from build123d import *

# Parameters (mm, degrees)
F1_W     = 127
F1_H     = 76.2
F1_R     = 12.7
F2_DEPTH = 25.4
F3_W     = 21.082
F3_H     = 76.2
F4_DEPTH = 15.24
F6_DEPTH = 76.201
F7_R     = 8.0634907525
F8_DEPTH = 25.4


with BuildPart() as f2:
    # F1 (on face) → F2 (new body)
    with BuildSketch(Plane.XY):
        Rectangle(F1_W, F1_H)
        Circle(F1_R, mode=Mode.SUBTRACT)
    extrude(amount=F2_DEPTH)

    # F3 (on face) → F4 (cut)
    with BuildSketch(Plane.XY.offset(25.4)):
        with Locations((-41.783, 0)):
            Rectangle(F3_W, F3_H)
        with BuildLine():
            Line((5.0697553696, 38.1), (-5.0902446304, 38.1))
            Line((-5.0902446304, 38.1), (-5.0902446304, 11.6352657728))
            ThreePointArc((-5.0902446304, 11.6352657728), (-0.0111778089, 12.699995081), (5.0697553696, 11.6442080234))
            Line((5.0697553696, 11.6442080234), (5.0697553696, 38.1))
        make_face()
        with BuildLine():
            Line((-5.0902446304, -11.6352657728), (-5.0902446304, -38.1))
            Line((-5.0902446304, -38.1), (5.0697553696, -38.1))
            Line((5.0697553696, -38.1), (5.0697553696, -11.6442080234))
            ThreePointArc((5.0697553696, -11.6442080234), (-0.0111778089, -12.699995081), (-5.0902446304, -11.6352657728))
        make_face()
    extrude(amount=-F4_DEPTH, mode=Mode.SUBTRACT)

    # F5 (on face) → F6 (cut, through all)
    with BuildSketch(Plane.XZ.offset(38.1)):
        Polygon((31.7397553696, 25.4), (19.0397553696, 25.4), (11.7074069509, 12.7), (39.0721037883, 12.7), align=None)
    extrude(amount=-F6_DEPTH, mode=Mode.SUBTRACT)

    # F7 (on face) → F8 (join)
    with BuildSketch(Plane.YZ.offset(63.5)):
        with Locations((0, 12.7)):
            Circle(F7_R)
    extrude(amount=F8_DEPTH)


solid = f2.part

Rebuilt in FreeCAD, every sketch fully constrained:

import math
import FreeCAD as App
import Part
import Sketcher

V = App.Vector
Q = App.Units.Quantity


def add_polygon(sketch, points):
    """Adds a closed chain of lines whose ends are joined by coincident constraints."""
    first, n = sketch.GeometryCount, len(points)
    for a, b in zip(points, points[1:] + points[:1]):
        sketch.addGeometry(Part.LineSegment(App.Vector(*a, 0), App.Vector(*b, 0)), False)
    for i in range(n):
        sketch.addConstraint(Sketcher.Constraint("Coincident", first + i, 2, first + (i + 1) % n, 1))

doc = App.newDocument("Part")
params = doc.addObject("Spreadsheet::Sheet", "Params")
for row, (alias, value) in enumerate([
    ("sketch1_diameter", "1 in"),
    ("sketch1_width", "5 in"),
    ("sketch1_height", "3 in"),
    ("pad1_length", "1 in"),
    ("sketch2_radius", "0.5 in"),
    ("sketch2_height", "3 in"),
    ("sketch2_width", "0.4 in"),
    ("sketch2_width2", "0.83 in"),
    ("pocket1_length", "0.6 in"),
    ("sketch3_width", "0.5 in"),
    ("pad2_length", "1 in"),
], start=1):
    params.set(f"A{row}", alias)
    params.set(f"B{row}", "=" + value)
    params.setAlias(f"B{row}", alias)

body = doc.addObject("PartDesign::Body", "Body")

sketch1 = body.newObject("Sketcher::SketchObject", "Sketch")
sketch1.AttachmentSupport = (doc.getObject("XY_Plane"), [""])
sketch1.MapMode = "FlatFace"
add_polygon(sketch1, [(-63.5, 38.1), (-63.5, -38.1), (63.5, -38.1), (63.5, 38.1)])
sketch1.addGeometry(Part.Circle(V(0, 0, 0), V(0, 0, 1), 12.7), False)
sketch1.addConstraint(Sketcher.Constraint("Vertical", 0))
sketch1.addConstraint(Sketcher.Constraint("Horizontal", 1))
sketch1.addConstraint(Sketcher.Constraint("Vertical", 2))
sketch1.addConstraint(Sketcher.Constraint("Horizontal", 3))
sketch1.addConstraint(Sketcher.Constraint("Coincident", 4, 3, -1, 1))
sketch1.addConstraint(Sketcher.Constraint("Symmetric", 0, 2, 2, 2, -1, 1))
sketch1.addConstraint(Sketcher.Constraint("Diameter", 4, Q("1 in")))
sketch1.addConstraint(Sketcher.Constraint("DistanceX", 1, 1, 1, 2, Q("5 in")))
sketch1.addConstraint(Sketcher.Constraint("DistanceY", 0, 2, 0, 1, Q("3 in")))
sketch1.setExpression("Constraints[10]", "Params.sketch1_diameter")
sketch1.setExpression("Constraints[11]", "Params.sketch1_width")
sketch1.setExpression("Constraints[12]", "Params.sketch1_height")
pad1 = body.newObject("PartDesign::Pad", "Pad")
pad1.Profile = sketch1
pad1.setExpression("Length", "Params.pad1_length")

sketch2 = body.newObject("Sketcher::SketchObject", "Sketch001")
sketch2.AttachmentSupport = (doc.getObject("XY_Plane"), [""])
sketch2.MapMode = "FlatFace"
sketch2.AttachmentOffset = App.Placement(V(0, 0, 1 * 25.4), App.Rotation())
add_polygon(sketch2, [(-52.324, 38.1), (-52.324, -38.1), (-31.242, -38.1), (-31.242, 38.1)])
sketch2.addGeometry(Part.LineSegment(V(5.069755, 38.1, 0), V(-5.090245, 38.1, 0)), False)
sketch2.addGeometry(Part.LineSegment(V(-5.090245, 38.1, 0), V(-5.090245, 11.635266, 0)), False)
sketch2.addGeometry(Part.ArcOfCircle(Part.Circle(V(0, 0, 0), V(0, 0, 1), 12.7), math.radians(66.47224), math.radians(113.628617)), False)
sketch2.addGeometry(Part.LineSegment(V(5.069755, 11.644208, 0), V(5.069755, 38.1, 0)), False)
sketch2.addGeometry(Part.LineSegment(V(-5.090245, -11.635266, 0), V(-5.090245, -38.1, 0)), False)
sketch2.addGeometry(Part.LineSegment(V(-5.090245, -38.1, 0), V(5.069755, -38.1, 0)), False)
sketch2.addGeometry(Part.LineSegment(V(5.069755, -38.1, 0), V(5.069755, -11.644208, 0)), False)
sketch2.addGeometry(Part.ArcOfCircle(Part.Circle(V(0, 0, 0), V(0, 0, 1), 12.7), math.radians(-113.628617), math.radians(-66.47224)), False)
sketch2.addConstraint(Sketcher.Constraint("Coincident", 4, 2, 5, 1))
sketch2.addConstraint(Sketcher.Constraint("Coincident", 5, 2, 6, 2))
sketch2.addConstraint(Sketcher.Constraint("Coincident", 6, 1, 7, 1))
sketch2.addConstraint(Sketcher.Constraint("Coincident", 7, 2, 4, 1))
sketch2.addConstraint(Sketcher.Constraint("Coincident", 8, 2, 9, 1))
sketch2.addConstraint(Sketcher.Constraint("Coincident", 9, 2, 10, 1))
sketch2.addConstraint(Sketcher.Constraint("Coincident", 10, 2, 11, 2))
sketch2.addConstraint(Sketcher.Constraint("Coincident", 11, 1, 8, 1))
sketch2.addConstraint(Sketcher.Constraint("Vertical", 0))
sketch2.addConstraint(Sketcher.Constraint("Horizontal", 1))
sketch2.addConstraint(Sketcher.Constraint("Vertical", 2))
sketch2.addConstraint(Sketcher.Constraint("Horizontal", 3))
sketch2.addConstraint(Sketcher.Constraint("Horizontal", 4))
sketch2.addConstraint(Sketcher.Constraint("Vertical", 5))
sketch2.addConstraint(Sketcher.Constraint("Vertical", 7))
sketch2.addConstraint(Sketcher.Constraint("Vertical", 8))
sketch2.addConstraint(Sketcher.Constraint("Horizontal", 9))
sketch2.addConstraint(Sketcher.Constraint("Vertical", 10))
sketch2.addConstraint(Sketcher.Constraint("Coincident", 6, 3, -1, 1))
sketch2.addConstraint(Sketcher.Constraint("Coincident", 11, 3, -1, 1))
sketch2.addConstraint(Sketcher.Constraint("Equal", 6, 11))
sketch2.addConstraint(Sketcher.Constraint("Symmetric", 4, 2, 8, 2, -1))
sketch2.addConstraint(Sketcher.Constraint("Horizontal", 3, 2, 4, 2))
sketch2.addConstraint(Sketcher.Constraint("Horizontal", 1, 2, 8, 2))
sketch2.addConstraint(Sketcher.Constraint("Vertical", 7, 2, 9, 2))
sketch2.addConstraint(Sketcher.Constraint("Radius", 6, Q("0.5 in")))
sketch2.addConstraint(Sketcher.Constraint("DistanceY", 0, 2, 0, 1, Q("3 in")))
sketch2.addConstraint(Sketcher.Constraint("DistanceX", 4, 2, 4, 1, Q("0.4 in")))
sketch2.addConstraint(Sketcher.Constraint("DistanceX", 1, 1, 1, 2, Q("0.83 in")))
sketch2.addConstraint(Sketcher.Constraint("DistanceX", 0, 2, -1, 1, Q("2.06 in")))
sketch2.addConstraint(Sketcher.Constraint("DistanceY", 7, 1, 7, 2, Q("26.455792 mm")))
sketch2.setExpression("Constraints[29]", "Params.sketch2_radius")
sketch2.setExpression("Constraints[30]", "Params.sketch2_height")
sketch2.setExpression("Constraints[31]", "Params.sketch2_width")
sketch2.setExpression("Constraints[32]", "Params.sketch2_width2")
pocket1 = body.newObject("PartDesign::Pocket", "Pocket")
pocket1.Profile = sketch2
pocket1.setExpression("Length", "Params.pocket1_length")

sketch3 = body.newObject("Sketcher::SketchObject", "Sketch002")
sketch3.AttachmentSupport = (doc.getObject("XZ_Plane"), [""])
sketch3.MapMode = "FlatFace"
sketch3.AttachmentOffset = App.Placement(V(0, 0, 1.5 * 25.4), App.Rotation())
add_polygon(sketch3, [(31.739755, 25.4), (19.039755, 25.4), (11.707407, 12.7), (39.072104, 12.7)])
sketch3.addConstraint(Sketcher.Constraint("Horizontal", 0))
sketch3.addConstraint(Sketcher.Constraint("Horizontal", 2))
sketch3.addConstraint(Sketcher.Constraint("Equal", 1, 3))
sketch3.addConstraint(Sketcher.Constraint("DistanceX", 0, 2, 0, 1, Q("0.5 in")))
sketch3.addConstraint(Sketcher.Constraint("DistanceY", -1, 1, 0, 2, Q("1 in")))
sketch3.addConstraint(Sketcher.Constraint("Angle", 1, Q("-120 deg")))
sketch3.addConstraint(Sketcher.Constraint("DistanceY", -1, 1, 1, 2, Q("0.5 in")))
sketch3.addConstraint(Sketcher.Constraint("DistanceX", -1, 1, 0, 2, Q("19.039755 mm")))
sketch3.setExpression("Constraints[7]", "Params.sketch3_width")
pocket2 = body.newObject("PartDesign::Pocket", "Pocket001")
pocket2.Profile = sketch3
pocket2.Type = "ThroughAll"

sketch4 = body.newObject("Sketcher::SketchObject", "Sketch003")
sketch4.AttachmentSupport = (doc.getObject("YZ_Plane"), [""])
sketch4.MapMode = "FlatFace"
sketch4.AttachmentOffset = App.Placement(V(0, 0, 2.5 * 25.4), App.Rotation())
sketch4.addGeometry(Part.Circle(V(0, 12.7, 0), V(0, 0, 1), 8.063491), False)
sketch4.addConstraint(Sketcher.Constraint("PointOnObject", 0, 3, -2))
sketch4.addConstraint(Sketcher.Constraint("DistanceY", -1, 1, 0, 3, Q("0.5 in")))
sketch4.addConstraint(Sketcher.Constraint("Diameter", 0, Q("16.126982 mm")))
pad2 = body.newObject("PartDesign::Pad", "Pad001")
pad2.Profile = sketch4
pad2.setExpression("Length", "Params.pad2_length")

doc.recompute()
